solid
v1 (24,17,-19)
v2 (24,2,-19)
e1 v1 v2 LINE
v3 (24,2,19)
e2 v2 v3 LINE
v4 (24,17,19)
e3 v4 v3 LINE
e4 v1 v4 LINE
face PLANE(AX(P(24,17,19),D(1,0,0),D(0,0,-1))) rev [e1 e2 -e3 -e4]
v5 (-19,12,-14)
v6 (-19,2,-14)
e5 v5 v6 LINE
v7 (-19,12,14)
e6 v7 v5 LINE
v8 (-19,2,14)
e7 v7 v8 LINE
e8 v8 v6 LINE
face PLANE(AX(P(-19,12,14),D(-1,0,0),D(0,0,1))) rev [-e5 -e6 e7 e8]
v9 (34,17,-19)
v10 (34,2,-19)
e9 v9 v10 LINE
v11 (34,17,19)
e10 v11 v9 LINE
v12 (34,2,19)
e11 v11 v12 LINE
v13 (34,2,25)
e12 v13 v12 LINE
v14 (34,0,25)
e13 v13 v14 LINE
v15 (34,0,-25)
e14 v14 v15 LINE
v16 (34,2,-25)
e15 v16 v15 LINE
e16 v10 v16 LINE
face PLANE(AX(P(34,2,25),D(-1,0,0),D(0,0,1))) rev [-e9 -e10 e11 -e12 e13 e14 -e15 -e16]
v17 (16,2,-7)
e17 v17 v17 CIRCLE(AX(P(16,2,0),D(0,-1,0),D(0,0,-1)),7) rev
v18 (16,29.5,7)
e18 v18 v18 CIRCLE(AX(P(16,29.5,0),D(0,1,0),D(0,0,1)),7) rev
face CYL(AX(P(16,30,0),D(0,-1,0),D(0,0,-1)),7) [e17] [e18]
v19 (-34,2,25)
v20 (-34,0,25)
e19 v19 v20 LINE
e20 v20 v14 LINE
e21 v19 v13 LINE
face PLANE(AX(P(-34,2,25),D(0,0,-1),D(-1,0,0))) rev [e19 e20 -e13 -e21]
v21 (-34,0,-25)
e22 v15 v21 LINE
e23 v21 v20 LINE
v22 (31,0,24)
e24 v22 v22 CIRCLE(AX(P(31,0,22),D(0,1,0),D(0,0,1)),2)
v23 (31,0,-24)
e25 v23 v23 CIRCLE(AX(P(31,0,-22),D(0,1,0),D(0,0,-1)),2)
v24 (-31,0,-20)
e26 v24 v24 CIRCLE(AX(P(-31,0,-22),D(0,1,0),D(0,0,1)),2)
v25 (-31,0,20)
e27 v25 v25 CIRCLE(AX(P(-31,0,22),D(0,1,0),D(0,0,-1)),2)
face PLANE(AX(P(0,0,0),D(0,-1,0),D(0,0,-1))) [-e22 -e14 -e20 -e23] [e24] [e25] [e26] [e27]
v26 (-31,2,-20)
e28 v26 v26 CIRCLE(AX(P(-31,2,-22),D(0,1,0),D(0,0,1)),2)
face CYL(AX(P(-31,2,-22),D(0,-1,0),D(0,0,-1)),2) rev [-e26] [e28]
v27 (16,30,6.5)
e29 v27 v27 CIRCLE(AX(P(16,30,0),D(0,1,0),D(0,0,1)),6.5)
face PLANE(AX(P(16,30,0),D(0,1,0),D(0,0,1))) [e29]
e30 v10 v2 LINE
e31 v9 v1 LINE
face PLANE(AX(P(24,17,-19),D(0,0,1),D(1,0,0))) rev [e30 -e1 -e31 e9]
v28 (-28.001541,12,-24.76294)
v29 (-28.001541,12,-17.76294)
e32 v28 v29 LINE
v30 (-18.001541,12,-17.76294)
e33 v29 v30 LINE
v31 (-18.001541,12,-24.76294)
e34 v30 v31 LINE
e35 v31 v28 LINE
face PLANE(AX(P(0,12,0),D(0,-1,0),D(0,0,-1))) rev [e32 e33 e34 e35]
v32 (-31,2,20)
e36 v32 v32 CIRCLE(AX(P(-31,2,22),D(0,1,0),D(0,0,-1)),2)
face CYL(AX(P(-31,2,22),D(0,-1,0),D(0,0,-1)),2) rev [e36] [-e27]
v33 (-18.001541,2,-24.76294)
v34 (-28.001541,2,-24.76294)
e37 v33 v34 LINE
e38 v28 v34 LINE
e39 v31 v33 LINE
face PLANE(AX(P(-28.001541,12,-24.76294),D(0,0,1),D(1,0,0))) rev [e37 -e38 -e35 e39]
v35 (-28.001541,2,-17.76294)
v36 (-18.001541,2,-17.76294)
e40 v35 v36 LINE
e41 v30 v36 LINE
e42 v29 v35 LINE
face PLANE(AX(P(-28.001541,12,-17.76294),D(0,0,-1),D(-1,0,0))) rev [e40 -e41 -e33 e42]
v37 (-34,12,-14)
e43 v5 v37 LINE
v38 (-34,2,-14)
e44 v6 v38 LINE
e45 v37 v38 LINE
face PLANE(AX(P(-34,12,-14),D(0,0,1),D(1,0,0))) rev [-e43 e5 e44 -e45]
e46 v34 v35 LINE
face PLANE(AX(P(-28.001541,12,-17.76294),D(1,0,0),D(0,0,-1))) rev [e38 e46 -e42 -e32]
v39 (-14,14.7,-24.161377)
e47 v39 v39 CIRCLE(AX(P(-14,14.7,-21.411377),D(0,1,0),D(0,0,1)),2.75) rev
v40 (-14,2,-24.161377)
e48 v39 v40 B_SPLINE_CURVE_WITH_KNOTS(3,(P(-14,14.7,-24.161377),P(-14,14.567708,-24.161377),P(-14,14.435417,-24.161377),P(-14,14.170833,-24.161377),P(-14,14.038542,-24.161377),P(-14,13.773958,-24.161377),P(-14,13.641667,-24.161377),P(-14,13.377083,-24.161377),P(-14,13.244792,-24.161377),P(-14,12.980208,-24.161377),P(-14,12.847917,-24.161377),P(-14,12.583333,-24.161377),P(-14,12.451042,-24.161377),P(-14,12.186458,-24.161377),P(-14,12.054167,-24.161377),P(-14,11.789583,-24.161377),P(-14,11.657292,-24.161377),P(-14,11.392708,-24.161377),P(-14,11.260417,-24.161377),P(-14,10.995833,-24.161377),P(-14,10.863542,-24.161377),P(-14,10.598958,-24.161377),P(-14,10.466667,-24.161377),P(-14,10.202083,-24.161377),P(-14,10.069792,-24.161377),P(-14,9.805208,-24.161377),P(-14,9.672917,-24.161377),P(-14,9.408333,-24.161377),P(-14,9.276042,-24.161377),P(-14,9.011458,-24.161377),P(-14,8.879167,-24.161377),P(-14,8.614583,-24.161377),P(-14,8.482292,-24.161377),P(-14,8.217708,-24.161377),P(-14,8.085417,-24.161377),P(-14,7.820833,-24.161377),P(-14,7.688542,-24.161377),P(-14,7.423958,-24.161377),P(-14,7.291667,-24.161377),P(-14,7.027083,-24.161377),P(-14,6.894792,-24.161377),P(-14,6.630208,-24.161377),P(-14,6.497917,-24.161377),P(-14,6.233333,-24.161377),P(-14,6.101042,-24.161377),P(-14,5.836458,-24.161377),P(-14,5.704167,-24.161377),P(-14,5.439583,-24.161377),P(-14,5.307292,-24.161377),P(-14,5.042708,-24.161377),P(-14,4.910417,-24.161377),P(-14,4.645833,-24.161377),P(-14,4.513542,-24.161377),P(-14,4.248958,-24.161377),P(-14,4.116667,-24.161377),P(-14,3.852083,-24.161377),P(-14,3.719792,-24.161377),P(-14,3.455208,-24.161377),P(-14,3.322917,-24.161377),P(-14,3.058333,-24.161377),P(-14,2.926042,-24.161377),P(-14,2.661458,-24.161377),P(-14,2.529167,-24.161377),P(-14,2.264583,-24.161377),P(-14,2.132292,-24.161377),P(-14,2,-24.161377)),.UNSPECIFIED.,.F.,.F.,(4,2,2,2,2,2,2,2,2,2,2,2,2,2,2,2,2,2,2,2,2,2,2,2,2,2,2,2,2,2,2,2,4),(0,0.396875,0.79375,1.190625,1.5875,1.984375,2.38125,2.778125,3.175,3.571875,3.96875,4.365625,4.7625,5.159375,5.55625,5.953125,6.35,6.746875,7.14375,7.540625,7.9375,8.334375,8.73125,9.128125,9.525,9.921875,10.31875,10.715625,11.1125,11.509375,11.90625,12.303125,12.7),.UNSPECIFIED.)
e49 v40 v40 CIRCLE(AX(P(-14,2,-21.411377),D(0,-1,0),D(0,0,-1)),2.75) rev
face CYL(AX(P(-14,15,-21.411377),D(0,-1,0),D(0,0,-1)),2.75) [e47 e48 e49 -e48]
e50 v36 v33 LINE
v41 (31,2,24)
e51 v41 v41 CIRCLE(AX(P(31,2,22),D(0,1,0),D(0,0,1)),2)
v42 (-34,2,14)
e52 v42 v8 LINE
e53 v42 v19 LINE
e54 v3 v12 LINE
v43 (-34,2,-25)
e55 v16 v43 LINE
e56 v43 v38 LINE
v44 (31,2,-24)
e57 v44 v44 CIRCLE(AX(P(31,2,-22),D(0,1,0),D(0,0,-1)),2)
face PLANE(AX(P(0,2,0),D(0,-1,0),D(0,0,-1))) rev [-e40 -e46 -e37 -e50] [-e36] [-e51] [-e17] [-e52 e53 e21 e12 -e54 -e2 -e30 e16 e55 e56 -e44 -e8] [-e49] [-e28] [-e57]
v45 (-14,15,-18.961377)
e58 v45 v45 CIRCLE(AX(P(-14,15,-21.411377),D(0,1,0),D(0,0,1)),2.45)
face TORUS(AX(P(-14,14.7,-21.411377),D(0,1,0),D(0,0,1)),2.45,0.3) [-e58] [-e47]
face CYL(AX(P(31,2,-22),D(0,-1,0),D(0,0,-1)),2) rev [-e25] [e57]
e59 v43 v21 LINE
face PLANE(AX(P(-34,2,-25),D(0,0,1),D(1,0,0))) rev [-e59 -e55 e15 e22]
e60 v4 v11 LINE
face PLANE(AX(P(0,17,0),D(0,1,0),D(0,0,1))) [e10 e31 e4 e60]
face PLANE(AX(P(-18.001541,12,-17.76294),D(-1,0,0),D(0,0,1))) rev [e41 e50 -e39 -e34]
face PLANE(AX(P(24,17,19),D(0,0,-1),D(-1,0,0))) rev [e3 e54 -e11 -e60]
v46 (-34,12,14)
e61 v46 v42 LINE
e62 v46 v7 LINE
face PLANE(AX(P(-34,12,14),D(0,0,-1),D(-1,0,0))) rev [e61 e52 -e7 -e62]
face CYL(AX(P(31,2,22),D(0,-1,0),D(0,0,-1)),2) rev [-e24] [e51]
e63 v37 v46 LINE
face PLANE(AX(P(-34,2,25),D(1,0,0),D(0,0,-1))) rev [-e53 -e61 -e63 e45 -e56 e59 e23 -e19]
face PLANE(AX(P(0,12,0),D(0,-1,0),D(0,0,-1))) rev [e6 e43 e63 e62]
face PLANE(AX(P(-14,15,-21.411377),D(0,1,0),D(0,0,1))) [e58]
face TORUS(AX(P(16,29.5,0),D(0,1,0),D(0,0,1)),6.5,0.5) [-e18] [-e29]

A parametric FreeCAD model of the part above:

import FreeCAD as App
import Part
import Sketcher

V = App.Vector


def edges_at(feature, points):
    """Names of the edges that pass closest to the given points."""
    edges = feature.Shape.Edges
    near = lambda p: min(range(len(edges)), key=lambda i: edges[i].distToShape(Part.Vertex(*p))[0])
    return sorted({f"Edge{near(p) + 1}" for p in points})


def add_polygon(sketch, points):
    """Adds a closed chain of lines whose ends are joined by coincident constraints."""
    first, n = sketch.GeometryCount, len(points)
    for a, b in zip(points, points[1:] + points[:1]):
        sketch.addGeometry(Part.LineSegment(App.Vector(*a, 0), App.Vector(*b, 0)), False)
    for i in range(n):
        sketch.addConstraint(Sketcher.Constraint("Coincident", first + i, 2, first + (i + 1) % n, 1))

doc = App.newDocument("Part")
params = doc.addObject("Spreadsheet::Sheet", "Params")
for row, (alias, value) in enumerate([
    ("sketch1_diameter", "4 mm"),
    ("sketch1_width", "68 mm"),
    ("sketch1_height", "50 mm"),
    ("pad1_length", "2 mm"),
    ("sketch2_diameter", "14 mm"),
    ("pad2_length", "28 mm"),
    ("fillet_radius", "0.5 mm"),
    ("sketch3_width", "10 mm"),
    ("sketch3_height", "38 mm"),
    ("pad3_length", "15 mm"),
    ("sketch4_width", "15 mm"),
    ("sketch4_height", "28 mm"),
    ("pad4_length", "10 mm"),
    ("sketch5_width", "10 mm"),
    ("sketch5_height", "7 mm"),
    ("pad5_length", "10 mm"),
    ("sketch6_diameter", "5.5 mm"),
    ("pad6_length", "13 mm"),
    ("fillet2_radius", "0.3 mm"),
], start=1):
    params.set(f"A{row}", alias)
    params.set(f"B{row}", "=" + value)
    params.setAlias(f"B{row}", alias)

body = doc.addObject("PartDesign::Body", "Body")

# Sketch on XZ plane
sketch1 = body.newObject("Sketcher::SketchObject", "Sketch")
sketch1.AttachmentSupport = (doc.getObject("XZ_Plane"), [""])
sketch1.MapMode = "FlatFace"
add_polygon(sketch1, [(-34, -25), (-34, 25), (34, 25), (34, -25)])  # lines 0-3
sketch1.addGeometry(Part.Circle(V(-31, 22, 0), V(0, 0, 1), 2), False)  # 4
sketch1.addGeometry(Part.Circle(V(31, 22, 0), V(0, 0, 1), 2), False)  # 5
sketch1.addGeometry(Part.Circle(V(-31, -22, 0), V(0, 0, 1), 2), False)  # 6
sketch1.addGeometry(Part.Circle(V(31, -22, 0), V(0, 0, 1), 2), False)  # 7
sketch1.addConstraint([
    Sketcher.Constraint("Vertical", 0),
    Sketcher.Constraint("Horizontal", 1),
    Sketcher.Constraint("Vertical", 2),
    Sketcher.Constraint("Horizontal", 3),
    Sketcher.Constraint("Equal", 4, 5),
    Sketcher.Constraint("Equal", 5, 6),
    Sketcher.Constraint("Equal", 6, 7),
    Sketcher.Constraint("Symmetric", 5, 3, 6, 3, -1, 1),
    Sketcher.Constraint("Symmetric", 4, 3, 7, 3, -1, 1),
    Sketcher.Constraint("Symmetric", 0, 2, 2, 2, -1, 1),
    Sketcher.Constraint("Symmetric", 4, 3, 5, 3, -2),
    Sketcher.Constraint("Diameter", 4, 4.0),
    Sketcher.Constraint("DistanceX", 1, 1, 1, 2, 68.0),
    Sketcher.Constraint("DistanceY", 0, 1, 0, 2, 50.0),
    Sketcher.Constraint("DistanceX", 4, 3, -1, 1, 31.0),
    Sketcher.Constraint("DistanceY", -1, 1, 4, 3, 22.0),
])
sketch1.setExpression("Constraints[15]", "Params.sketch1_diameter")
sketch1.setExpression("Constraints[16]", "Params.sketch1_width")
sketch1.setExpression("Constraints[17]", "Params.sketch1_height")
pad1 = body.newObject("PartDesign::Pad", "Pad")
pad1.Profile = sketch1
pad1.setExpression("Length", "Params.pad1_length")
pad1.Reversed = True

# Sketch on XZ plane
sketch2 = body.newObject("Sketcher::SketchObject", "Sketch001")
sketch2.AttachmentSupport = (doc.getObject("XZ_Plane"), [""])
sketch2.MapMode = "FlatFace"
sketch2.AttachmentOffset = App.Placement(V(0, 0, -2), App.Rotation())
sketch2.addGeometry(Part.Circle(V(16, 0, 0), V(0, 0, 1), 7), False)
sketch2.addConstraint([
    Sketcher.Constraint("PointOnObject", 0, 3, -1),
    Sketcher.Constraint("Diameter", 0, 14.0),
    Sketcher.Constraint("DistanceX", -1, 1, 0, 3, 16.0),
])
sketch2.setExpression("Constraints[1]", "Params.sketch2_diameter")
pad2 = body.newObject("PartDesign::Pad", "Pad001")
pad2.Profile = sketch2
pad2.setExpression("Length", "Params.pad2_length")
pad2.Reversed = True
doc.recompute()

fillet = body.newObject("PartDesign::Fillet", "Fillet")
fillet.Base = (pad2, edges_at(pad2, [(16, 30, 7)]))
fillet.setExpression("Radius", "Params.fillet_radius")

# Sketch on XZ plane
sketch3 = body.newObject("Sketcher::SketchObject", "Sketch002")
sketch3.AttachmentSupport = (doc.getObject("XZ_Plane"), [""])
sketch3.MapMode = "FlatFace"
sketch3.AttachmentOffset = App.Placement(V(0, 0, -2), App.Rotation())
add_polygon(sketch3, [(24, -19), (24, 19), (34, 19), (34, -19)])  # lines 0-3
sketch3.addConstraint([
    Sketcher.Constraint("Vertical", 0),
    Sketcher.Constraint("Horizontal", 1),
    Sketcher.Constraint("Vertical", 2),
    Sketcher.Constraint("Horizontal", 3),
    Sketcher.Constraint("DistanceX", 1, 1, 1, 2, 10.0),
    Sketcher.Constraint("DistanceY", 0, 1, 0, 2, 38.0),
    Sketcher.Constraint("DistanceX", -1, 1, 0, 2, 24.0),
    Sketcher.Constraint("DistanceY", -1, 1, 0, 2, 19.0),
])
sketch3.setExpression("Constraints[8]", "Params.sketch3_width")
sketch3.setExpression("Constraints[9]", "Params.sketch3_height")
pad3 = body.newObject("PartDesign::Pad", "Pad002")
pad3.Profile = sketch3
pad3.setExpression("Length", "Params.pad3_length")
pad3.Reversed = True

# Sketch on XZ plane
sketch4 = body.newObject("Sketcher::SketchObject", "Sketch003")
sketch4.AttachmentSupport = (doc.getObject("XZ_Plane"), [""])
sketch4.MapMode = "FlatFace"
sketch4.AttachmentOffset = App.Placement(V(0, 0, -2), App.Rotation())
add_polygon(sketch4, [(-34, -14), (-34, 14), (-19, 14), (-19, -14)])  # lines 0-3
sketch4.addConstraint([
    Sketcher.Constraint("Vertical", 0),
    Sketcher.Constraint("Horizontal", 1),
    Sketcher.Constraint("Vertical", 2),
    Sketcher.Constraint("Horizontal", 3),
    Sketcher.Constraint("DistanceX", 1, 1, 1, 2, 15.0),
    Sketcher.Constraint("DistanceY", 0, 1, 0, 2, 28.0),
    Sketcher.Constraint("DistanceX", 0, 2, -1, 1, 34.0),
    Sketcher.Constraint("DistanceY", -1, 1, 0, 2, 14.0),
])
sketch4.setExpression("Constraints[8]", "Params.sketch4_width")
sketch4.setExpression("Constraints[9]", "Params.sketch4_height")
pad4 = body.newObject("PartDesign::Pad", "Pad003")
pad4.Profile = sketch4
pad4.setExpression("Length", "Params.pad4_length")
pad4.Reversed = True

# Sketch on XZ plane
sketch5 = body.newObject("Sketcher::SketchObject", "Sketch004")
sketch5.AttachmentSupport = (doc.getObject("XZ_Plane"), [""])
sketch5.MapMode = "FlatFace"
sketch5.AttachmentOffset = App.Placement(V(0, 0, -2), App.Rotation())
add_polygon(sketch5, [(-28, -25), (-28, -18), (-18, -18), (-18, -25)])  # lines 0-3
sketch5.addConstraint([
    Sketcher.Constraint("Vertical", 0),
    Sketcher.Constraint("Horizontal", 1),
    Sketcher.Constraint("Vertical", 2),
    Sketcher.Constraint("Horizontal", 3),
    Sketcher.Constraint("DistanceX", 1, 1, 1, 2, 10.0),
    Sketcher.Constraint("DistanceY", 0, 1, 0, 2, 7.0),
    Sketcher.Constraint("DistanceX", 0, 2, -1, 1, 28.001541),
    Sketcher.Constraint("DistanceY", 0, 2, -1, 1, 17.76294),
])
sketch5.setExpression("Constraints[8]", "Params.sketch5_width")
sketch5.setExpression("Constraints[9]", "Params.sketch5_height")
pad5 = body.newObject("PartDesign::Pad", "Pad004")
pad5.Profile = sketch5
pad5.setExpression("Length", "Params.pad5_length")
pad5.Reversed = True

# Sketch on XZ plane
sketch6 = body.newObject("Sketcher::SketchObject", "Sketch005")
sketch6.AttachmentSupport = (doc.getObject("XZ_Plane"), [""])
sketch6.MapMode = "FlatFace"
sketch6.AttachmentOffset = App.Placement(V(0, 0, -2), App.Rotation())
sketch6.addGeometry(Part.Circle(V(-14, -21.4, 0), V(0, 0, 1), 2.8), False)
sketch6.addConstraint([
    Sketcher.Constraint("Diameter", 0, 5.5),
    Sketcher.Constraint("DistanceX", 0, 3, -1, 1, 14.0),
    Sketcher.Constraint("DistanceY", 0, 3, -1, 1, 21.411377),
])
sketch6.setExpression("Constraints[0]", "Params.sketch6_diameter")
pad6 = body.newObject("PartDesign::Pad", "Pad005")
pad6.Profile = sketch6
pad6.setExpression("Length", "Params.pad6_length")
pad6.Reversed = True
doc.recompute()

fillet2 = body.newObject("PartDesign::Fillet", "Fillet001")
fillet2.Base = (pad6, edges_at(pad6, [(-14, 15, -18.661)]))
fillet2.setExpression("Radius", "Params.fillet2_radius")

doc.recompute()
